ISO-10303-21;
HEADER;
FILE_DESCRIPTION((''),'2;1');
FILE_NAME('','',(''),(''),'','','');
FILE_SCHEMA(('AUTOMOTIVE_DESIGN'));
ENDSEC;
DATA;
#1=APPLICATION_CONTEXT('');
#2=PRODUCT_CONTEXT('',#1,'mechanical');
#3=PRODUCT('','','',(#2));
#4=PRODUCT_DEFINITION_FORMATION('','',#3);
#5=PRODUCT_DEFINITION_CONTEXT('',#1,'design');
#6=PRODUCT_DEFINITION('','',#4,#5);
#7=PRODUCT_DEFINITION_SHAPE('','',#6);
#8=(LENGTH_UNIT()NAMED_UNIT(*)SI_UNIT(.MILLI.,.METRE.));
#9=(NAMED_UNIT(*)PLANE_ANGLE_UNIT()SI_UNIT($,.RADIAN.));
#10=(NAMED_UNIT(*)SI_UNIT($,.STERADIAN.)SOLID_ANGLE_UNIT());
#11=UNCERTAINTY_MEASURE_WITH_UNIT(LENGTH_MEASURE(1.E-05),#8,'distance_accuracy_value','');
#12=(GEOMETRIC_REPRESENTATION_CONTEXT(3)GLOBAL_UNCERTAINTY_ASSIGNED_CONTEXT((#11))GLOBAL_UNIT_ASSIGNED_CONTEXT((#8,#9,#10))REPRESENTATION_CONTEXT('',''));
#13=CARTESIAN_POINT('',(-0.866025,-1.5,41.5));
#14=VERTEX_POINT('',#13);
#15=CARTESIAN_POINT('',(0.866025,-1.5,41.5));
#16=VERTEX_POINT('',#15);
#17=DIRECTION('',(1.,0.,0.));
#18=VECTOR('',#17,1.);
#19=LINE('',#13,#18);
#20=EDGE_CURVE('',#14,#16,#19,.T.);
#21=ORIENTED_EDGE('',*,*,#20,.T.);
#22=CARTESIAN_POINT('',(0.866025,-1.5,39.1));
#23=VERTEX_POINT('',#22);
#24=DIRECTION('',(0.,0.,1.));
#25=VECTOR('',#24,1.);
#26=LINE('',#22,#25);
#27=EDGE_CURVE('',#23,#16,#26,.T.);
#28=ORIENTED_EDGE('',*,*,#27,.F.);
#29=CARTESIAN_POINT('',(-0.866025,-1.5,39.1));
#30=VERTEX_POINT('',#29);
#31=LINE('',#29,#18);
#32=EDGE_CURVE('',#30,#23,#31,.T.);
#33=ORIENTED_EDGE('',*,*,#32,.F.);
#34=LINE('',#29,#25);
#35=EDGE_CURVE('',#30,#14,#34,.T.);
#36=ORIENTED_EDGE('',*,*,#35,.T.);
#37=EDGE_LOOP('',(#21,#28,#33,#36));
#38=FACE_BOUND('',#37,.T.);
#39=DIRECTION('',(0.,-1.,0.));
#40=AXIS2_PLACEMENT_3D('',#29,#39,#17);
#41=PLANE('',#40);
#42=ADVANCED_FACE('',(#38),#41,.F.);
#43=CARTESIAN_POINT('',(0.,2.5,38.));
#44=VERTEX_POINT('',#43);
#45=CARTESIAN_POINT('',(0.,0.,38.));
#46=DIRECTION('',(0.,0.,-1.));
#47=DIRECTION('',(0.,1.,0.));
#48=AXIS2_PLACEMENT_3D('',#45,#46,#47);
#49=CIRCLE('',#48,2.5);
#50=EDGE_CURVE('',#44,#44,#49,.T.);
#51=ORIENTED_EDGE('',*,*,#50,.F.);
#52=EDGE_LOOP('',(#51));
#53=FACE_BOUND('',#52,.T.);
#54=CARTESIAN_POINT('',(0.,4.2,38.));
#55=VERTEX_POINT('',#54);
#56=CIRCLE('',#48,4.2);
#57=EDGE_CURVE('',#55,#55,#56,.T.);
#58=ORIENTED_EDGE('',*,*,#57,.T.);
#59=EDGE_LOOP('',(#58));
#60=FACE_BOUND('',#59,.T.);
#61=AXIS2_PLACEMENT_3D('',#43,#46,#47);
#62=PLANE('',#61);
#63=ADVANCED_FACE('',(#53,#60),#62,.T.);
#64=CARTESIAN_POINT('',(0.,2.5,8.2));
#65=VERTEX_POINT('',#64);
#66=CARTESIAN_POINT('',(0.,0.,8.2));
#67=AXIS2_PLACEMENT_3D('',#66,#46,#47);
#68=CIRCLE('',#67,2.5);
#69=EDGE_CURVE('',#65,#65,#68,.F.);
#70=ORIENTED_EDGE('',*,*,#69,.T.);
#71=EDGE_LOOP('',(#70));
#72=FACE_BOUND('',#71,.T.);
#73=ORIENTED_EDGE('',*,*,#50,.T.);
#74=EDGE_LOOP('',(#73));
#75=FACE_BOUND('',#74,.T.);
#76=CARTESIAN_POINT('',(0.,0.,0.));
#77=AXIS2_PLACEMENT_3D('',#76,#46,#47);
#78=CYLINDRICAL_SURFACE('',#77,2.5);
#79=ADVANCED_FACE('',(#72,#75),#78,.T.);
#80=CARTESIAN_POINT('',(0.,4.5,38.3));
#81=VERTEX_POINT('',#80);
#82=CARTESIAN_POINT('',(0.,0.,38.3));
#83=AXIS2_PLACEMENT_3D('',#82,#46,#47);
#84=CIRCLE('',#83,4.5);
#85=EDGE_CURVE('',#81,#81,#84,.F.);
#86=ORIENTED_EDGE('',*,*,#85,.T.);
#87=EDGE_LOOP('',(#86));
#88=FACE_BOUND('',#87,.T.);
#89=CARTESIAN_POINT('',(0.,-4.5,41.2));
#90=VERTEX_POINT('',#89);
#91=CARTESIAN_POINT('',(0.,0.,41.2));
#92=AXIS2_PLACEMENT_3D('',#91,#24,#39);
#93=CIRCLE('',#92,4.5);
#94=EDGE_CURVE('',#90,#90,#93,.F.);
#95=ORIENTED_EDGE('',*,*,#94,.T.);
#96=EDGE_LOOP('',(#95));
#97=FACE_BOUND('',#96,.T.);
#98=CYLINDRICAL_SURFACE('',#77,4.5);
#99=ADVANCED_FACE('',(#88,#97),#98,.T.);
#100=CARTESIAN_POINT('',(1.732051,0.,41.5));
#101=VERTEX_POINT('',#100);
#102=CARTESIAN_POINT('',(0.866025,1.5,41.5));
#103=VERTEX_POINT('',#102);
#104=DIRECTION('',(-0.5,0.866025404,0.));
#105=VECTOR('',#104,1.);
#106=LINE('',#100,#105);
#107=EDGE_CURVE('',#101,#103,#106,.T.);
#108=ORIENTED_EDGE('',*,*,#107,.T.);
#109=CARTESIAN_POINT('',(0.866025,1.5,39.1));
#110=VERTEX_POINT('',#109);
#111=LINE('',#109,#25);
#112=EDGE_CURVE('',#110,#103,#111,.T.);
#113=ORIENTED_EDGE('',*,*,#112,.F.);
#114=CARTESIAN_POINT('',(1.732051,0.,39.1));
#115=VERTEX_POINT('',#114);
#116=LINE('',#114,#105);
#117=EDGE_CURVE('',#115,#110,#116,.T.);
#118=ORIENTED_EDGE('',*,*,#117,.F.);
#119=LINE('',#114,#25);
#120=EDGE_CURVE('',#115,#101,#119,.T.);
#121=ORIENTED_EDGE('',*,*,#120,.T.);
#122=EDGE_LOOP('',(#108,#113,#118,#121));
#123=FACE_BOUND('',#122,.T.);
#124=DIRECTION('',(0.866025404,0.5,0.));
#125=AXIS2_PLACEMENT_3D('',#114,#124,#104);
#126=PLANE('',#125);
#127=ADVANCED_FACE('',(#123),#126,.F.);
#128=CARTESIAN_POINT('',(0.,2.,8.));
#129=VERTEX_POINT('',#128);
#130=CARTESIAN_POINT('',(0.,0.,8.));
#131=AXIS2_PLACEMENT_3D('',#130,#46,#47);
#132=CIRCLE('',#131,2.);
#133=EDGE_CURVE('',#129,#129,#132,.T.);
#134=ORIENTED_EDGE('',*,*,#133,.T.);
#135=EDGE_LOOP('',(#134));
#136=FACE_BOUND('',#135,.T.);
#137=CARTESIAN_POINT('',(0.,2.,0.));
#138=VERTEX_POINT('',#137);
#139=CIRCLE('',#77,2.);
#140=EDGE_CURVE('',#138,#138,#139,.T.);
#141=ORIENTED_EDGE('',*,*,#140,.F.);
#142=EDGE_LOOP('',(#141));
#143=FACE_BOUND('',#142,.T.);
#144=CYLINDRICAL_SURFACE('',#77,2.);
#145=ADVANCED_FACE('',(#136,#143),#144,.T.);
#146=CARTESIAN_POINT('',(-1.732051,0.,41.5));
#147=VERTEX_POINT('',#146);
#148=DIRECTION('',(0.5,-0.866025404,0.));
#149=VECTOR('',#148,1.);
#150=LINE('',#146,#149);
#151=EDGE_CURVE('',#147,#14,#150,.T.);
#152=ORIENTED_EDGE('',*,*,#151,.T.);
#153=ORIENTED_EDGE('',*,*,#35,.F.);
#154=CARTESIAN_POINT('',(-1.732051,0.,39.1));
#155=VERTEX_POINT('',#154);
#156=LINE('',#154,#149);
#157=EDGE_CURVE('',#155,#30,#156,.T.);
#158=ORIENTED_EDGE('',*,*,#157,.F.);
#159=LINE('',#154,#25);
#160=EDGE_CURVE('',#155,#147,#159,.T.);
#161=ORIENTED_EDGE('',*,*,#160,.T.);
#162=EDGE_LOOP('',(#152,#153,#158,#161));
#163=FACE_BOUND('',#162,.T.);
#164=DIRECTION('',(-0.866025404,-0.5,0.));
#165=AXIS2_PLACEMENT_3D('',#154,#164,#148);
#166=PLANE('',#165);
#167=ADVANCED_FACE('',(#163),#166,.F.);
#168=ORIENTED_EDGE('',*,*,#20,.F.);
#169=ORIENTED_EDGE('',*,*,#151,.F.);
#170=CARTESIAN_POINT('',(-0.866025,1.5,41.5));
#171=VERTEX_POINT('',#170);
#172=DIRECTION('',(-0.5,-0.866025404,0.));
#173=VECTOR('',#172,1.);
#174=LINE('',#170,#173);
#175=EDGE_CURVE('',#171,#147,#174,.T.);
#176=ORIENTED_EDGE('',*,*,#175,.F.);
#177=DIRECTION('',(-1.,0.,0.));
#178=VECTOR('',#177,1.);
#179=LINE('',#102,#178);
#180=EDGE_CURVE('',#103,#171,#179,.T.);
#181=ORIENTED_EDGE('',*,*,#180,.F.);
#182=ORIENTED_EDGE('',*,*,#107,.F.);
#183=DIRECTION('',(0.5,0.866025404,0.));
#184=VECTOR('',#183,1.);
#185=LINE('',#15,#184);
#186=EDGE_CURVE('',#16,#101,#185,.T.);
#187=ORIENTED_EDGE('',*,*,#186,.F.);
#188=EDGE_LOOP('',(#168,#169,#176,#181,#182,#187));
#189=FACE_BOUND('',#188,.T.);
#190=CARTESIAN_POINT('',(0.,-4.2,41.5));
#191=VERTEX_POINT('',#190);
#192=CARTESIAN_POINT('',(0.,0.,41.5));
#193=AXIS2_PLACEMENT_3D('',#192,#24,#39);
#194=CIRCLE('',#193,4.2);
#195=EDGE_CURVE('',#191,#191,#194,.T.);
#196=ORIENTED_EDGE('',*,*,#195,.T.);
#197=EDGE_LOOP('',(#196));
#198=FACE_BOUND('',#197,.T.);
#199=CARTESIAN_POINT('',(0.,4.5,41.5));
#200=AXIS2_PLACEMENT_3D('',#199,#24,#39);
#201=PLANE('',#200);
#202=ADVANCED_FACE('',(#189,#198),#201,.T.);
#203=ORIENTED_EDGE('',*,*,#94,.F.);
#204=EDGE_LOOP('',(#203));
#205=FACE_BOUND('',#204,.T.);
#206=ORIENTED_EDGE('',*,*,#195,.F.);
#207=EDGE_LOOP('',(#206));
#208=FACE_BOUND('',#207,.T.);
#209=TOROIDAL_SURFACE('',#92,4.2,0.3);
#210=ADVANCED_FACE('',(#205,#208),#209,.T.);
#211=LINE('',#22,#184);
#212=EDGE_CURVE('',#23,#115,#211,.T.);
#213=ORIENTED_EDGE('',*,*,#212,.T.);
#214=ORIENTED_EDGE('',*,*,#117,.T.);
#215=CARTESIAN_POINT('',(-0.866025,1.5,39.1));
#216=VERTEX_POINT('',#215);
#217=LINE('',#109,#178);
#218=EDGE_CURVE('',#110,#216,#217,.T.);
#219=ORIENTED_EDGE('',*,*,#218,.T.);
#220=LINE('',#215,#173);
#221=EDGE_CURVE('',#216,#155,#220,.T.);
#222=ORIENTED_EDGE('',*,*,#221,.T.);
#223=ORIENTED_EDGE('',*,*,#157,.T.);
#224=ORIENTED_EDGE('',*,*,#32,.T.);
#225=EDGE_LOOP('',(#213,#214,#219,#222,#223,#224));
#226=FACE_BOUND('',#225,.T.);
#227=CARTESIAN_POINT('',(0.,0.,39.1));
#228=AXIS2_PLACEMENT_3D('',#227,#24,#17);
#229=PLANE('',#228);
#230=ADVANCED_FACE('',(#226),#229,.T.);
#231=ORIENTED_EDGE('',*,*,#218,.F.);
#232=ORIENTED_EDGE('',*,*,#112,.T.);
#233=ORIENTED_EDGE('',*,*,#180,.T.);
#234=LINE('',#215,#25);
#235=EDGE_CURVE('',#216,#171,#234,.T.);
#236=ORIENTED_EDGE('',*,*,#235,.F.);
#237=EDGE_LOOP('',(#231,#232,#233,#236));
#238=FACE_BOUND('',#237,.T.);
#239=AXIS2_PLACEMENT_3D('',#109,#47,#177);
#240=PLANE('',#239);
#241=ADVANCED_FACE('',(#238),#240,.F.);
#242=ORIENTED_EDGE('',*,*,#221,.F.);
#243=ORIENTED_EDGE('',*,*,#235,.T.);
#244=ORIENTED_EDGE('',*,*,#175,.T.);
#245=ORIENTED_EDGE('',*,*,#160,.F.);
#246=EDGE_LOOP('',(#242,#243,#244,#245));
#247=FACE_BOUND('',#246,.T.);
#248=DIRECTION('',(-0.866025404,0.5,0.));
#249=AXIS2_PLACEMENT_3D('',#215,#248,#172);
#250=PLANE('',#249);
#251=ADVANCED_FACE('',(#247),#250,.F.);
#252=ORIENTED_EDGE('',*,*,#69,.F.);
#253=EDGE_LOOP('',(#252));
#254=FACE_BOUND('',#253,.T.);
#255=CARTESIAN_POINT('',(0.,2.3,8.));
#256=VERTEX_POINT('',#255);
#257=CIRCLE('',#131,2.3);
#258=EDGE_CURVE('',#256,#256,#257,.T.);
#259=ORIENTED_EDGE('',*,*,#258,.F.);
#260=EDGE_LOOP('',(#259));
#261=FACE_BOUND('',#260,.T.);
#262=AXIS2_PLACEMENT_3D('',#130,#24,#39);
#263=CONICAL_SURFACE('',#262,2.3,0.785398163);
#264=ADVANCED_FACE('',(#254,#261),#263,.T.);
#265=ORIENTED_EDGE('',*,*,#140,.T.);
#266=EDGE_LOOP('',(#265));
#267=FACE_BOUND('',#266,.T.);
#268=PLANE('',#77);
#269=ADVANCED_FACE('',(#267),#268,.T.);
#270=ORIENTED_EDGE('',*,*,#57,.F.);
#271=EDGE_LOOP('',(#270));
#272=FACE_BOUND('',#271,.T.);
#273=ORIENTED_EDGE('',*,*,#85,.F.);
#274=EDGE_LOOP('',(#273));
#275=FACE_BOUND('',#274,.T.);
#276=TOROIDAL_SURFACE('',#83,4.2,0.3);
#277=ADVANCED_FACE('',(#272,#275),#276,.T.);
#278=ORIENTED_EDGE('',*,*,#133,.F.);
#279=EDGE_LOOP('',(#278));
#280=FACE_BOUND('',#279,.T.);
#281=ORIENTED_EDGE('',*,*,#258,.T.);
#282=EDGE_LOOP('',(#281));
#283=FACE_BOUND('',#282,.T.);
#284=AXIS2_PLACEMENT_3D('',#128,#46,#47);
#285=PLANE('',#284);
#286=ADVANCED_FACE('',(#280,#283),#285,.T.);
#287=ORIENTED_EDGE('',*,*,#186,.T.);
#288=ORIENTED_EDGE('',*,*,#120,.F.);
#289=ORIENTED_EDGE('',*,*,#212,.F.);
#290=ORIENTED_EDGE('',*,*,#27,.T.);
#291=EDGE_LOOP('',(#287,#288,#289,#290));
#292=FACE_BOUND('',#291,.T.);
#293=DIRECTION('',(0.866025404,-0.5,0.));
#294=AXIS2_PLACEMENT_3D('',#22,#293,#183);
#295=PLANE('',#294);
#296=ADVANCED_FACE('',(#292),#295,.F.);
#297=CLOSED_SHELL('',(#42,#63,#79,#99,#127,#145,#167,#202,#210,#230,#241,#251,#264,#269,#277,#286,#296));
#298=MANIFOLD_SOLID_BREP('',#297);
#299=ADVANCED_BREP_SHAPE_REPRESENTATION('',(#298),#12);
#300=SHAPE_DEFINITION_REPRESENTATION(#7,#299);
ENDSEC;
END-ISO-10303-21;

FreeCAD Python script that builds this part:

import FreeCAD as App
import Part
import Sketcher

V = App.Vector
Q = App.Units.Quantity


def edges_at(feature, points):
    """Names of the edges that pass closest to the given points."""
    edges = feature.Shape.Edges
    near = lambda p: min(range(len(edges)), key=lambda i: edges[i].distToShape(Part.Vertex(*p))[0])
    return sorted({f"Edge{near(p) + 1}" for p in points})


def add_polygon(sketch, points):
    """Adds a closed chain of lines whose ends are joined by coincident constraints."""
    first, n = sketch.GeometryCount, len(points)
    for a, b in zip(points, points[1:] + points[:1]):
        sketch.addGeometry(Part.LineSegment(App.Vector(*a, 0), App.Vector(*b, 0)), False)
    for i in range(n):
        sketch.addConstraint(Sketcher.Constraint("Coincident", first + i, 2, first + (i + 1) % n, 1))

doc = App.newDocument("Part")
params = doc.addObject("Spreadsheet::Sheet", "Params")
for row, (alias, value) in enumerate([
    ("sketch1_width", "2 mm"),
    ("sketch1_height", "8 mm"),
    ("sketch1_height2", "30 mm"),
    ("sketch1_width2", "0.5 mm"),
    ("sketch1_height3", "3.5 mm"),
    ("revolution_angle", "360 deg"),
    ("fillet_radius", "0.3 mm"),
    ("pocket1_length", "2.4 mm"),
    ("chamfer_size", "0.2 mm"),
], start=1):
    params.set(f"A{row}", alias)
    params.set(f"B{row}", "=" + value)
    params.setAlias(f"B{row}", alias)

body = doc.addObject("PartDesign::Body", "Body")

# Sketch on YZ plane
sketch1 = doc.addObject("Sketcher::SketchObject", "Sketch")
body.addObject(sketch1)
sketch1.AttachmentSupport = (doc.YZ_Plane, [""])
sketch1.MapMode = "FlatFace"
add_polygon(sketch1, [(0, 0), (2, 0), (2, 8), (2.5, 8), (2.5, 38), (4.5, 38), (4.5, 41.5), (0, 41.5)])  # lines 0-7
sketch1.addConstraint(Sketcher.Constraint("Horizontal", 0))
sketch1.addConstraint(Sketcher.Constraint("Vertical", 1))
sketch1.addConstraint(Sketcher.Constraint("Horizontal", 2))
sketch1.addConstraint(Sketcher.Constraint("Vertical", 3))
sketch1.addConstraint(Sketcher.Constraint("Horizontal", 4))
sketch1.addConstraint(Sketcher.Constraint("Vertical", 5))
sketch1.addConstraint(Sketcher.Constraint("Horizontal", 6))
sketch1.addConstraint(Sketcher.Constraint("Vertical", 7))
sketch1.addConstraint(Sketcher.Constraint("Coincident", 7, 2, -1, 1))
sketch1.addConstraint(Sketcher.Constraint("Equal", 0, 4))
sketch1.addConstraint(Sketcher.Constraint("DistanceX", 0, 1, 0, 2, 2.0))
sketch1.addConstraint(Sketcher.Constraint("DistanceY", 1, 1, 1, 2, 8.0))
sketch1.addConstraint(Sketcher.Constraint("DistanceY", 3, 1, 3, 2, 30.0))
sketch1.addConstraint(Sketcher.Constraint("DistanceX", 2, 1, 2, 2, 0.5))
sketch1.addConstraint(Sketcher.Constraint("DistanceY", 5, 1, 5, 2, 3.5))
sketch1.setExpression("Constraints[18]", "Params.sketch1_width")
sketch1.setExpression("Constraints[19]", "Params.sketch1_height")
sketch1.setExpression("Constraints[20]", "Params.sketch1_height2")
sketch1.setExpression("Constraints[21]", "Params.sketch1_width2")
sketch1.setExpression("Constraints[22]", "Params.sketch1_height3")
revolution = doc.addObject("PartDesign::Revolution", "Revolution")
body.addObject(revolution)
revolution.Profile = sketch1
revolution.ReferenceAxis = (sketch1, ["V_Axis"])
revolution.setExpression("Angle", "Params.revolution_angle")
doc.recompute()

fillet = doc.addObject("PartDesign::Fillet", "Fillet")
body.addObject(fillet)
fillet.Base = (revolution, edges_at(revolution, [(0, -4.5, 41.5), (0, -4.5, 38)]))
fillet.setExpression("Radius", "Params.fillet_radius")

# Sketch on XY plane
sketch2 = doc.addObject("Sketcher::SketchObject", "Sketch001")
body.addObject(sketch2)
sketch2.AttachmentSupport = (doc.XY_Plane, [""])
sketch2.MapMode = "FlatFace"
sketch2.AttachmentOffset = App.Placement(V(0, 0, 41.5), App.Rotation())
add_polygon(sketch2, [(1.7, 0), (0.9, 1.5), (-0.9, 1.5), (-1.7, 0), (-0.9, -1.5), (0.9, -1.5)])  # lines 0-5
sketch2.addConstraint(Sketcher.Constraint("Horizontal", 1))
sketch2.addConstraint(Sketcher.Constraint("Horizontal", 4))
sketch2.addConstraint(Sketcher.Constraint("Symmetric", 0, 2, 3, 2, -1, 1))
sketch2.addConstraint(Sketcher.Constraint("Symmetric", 2, 2, 5, 2, -1, 1))
sketch2.addConstraint(Sketcher.Constraint("PointOnObject", 2, 2, -1))
sketch2.addConstraint(Sketcher.Constraint("Parallel", 2, 5))
sketch2.addConstraint(Sketcher.Constraint("Vertical", 1, 2, 3, 2))
sketch2.addConstraint(Sketcher.Constraint("Angle", 0, Q("120 deg")))
sketch2.addConstraint(Sketcher.Constraint("DistanceY", 3, 2, 1, 2, 3.0))
sketch2.addConstraint(Sketcher.Constraint("DistanceX", 1, 2, 1, 1, 1.732051))
pocket1 = doc.addObject("PartDesign::Pocket", "Pocket")
body.addObject(pocket1)
pocket1.Profile = sketch2
pocket1.setExpression("Length", "Params.pocket1_length")
doc.recompute()

chamfer = doc.addObject("PartDesign::Chamfer", "Chamfer")
body.addObject(chamfer)
chamfer.Base = (pocket1, edges_at(pocket1, [(0, -2.5, 8)]))
chamfer.setExpression("Size", "Params.chamfer_size")

doc.recompute()
